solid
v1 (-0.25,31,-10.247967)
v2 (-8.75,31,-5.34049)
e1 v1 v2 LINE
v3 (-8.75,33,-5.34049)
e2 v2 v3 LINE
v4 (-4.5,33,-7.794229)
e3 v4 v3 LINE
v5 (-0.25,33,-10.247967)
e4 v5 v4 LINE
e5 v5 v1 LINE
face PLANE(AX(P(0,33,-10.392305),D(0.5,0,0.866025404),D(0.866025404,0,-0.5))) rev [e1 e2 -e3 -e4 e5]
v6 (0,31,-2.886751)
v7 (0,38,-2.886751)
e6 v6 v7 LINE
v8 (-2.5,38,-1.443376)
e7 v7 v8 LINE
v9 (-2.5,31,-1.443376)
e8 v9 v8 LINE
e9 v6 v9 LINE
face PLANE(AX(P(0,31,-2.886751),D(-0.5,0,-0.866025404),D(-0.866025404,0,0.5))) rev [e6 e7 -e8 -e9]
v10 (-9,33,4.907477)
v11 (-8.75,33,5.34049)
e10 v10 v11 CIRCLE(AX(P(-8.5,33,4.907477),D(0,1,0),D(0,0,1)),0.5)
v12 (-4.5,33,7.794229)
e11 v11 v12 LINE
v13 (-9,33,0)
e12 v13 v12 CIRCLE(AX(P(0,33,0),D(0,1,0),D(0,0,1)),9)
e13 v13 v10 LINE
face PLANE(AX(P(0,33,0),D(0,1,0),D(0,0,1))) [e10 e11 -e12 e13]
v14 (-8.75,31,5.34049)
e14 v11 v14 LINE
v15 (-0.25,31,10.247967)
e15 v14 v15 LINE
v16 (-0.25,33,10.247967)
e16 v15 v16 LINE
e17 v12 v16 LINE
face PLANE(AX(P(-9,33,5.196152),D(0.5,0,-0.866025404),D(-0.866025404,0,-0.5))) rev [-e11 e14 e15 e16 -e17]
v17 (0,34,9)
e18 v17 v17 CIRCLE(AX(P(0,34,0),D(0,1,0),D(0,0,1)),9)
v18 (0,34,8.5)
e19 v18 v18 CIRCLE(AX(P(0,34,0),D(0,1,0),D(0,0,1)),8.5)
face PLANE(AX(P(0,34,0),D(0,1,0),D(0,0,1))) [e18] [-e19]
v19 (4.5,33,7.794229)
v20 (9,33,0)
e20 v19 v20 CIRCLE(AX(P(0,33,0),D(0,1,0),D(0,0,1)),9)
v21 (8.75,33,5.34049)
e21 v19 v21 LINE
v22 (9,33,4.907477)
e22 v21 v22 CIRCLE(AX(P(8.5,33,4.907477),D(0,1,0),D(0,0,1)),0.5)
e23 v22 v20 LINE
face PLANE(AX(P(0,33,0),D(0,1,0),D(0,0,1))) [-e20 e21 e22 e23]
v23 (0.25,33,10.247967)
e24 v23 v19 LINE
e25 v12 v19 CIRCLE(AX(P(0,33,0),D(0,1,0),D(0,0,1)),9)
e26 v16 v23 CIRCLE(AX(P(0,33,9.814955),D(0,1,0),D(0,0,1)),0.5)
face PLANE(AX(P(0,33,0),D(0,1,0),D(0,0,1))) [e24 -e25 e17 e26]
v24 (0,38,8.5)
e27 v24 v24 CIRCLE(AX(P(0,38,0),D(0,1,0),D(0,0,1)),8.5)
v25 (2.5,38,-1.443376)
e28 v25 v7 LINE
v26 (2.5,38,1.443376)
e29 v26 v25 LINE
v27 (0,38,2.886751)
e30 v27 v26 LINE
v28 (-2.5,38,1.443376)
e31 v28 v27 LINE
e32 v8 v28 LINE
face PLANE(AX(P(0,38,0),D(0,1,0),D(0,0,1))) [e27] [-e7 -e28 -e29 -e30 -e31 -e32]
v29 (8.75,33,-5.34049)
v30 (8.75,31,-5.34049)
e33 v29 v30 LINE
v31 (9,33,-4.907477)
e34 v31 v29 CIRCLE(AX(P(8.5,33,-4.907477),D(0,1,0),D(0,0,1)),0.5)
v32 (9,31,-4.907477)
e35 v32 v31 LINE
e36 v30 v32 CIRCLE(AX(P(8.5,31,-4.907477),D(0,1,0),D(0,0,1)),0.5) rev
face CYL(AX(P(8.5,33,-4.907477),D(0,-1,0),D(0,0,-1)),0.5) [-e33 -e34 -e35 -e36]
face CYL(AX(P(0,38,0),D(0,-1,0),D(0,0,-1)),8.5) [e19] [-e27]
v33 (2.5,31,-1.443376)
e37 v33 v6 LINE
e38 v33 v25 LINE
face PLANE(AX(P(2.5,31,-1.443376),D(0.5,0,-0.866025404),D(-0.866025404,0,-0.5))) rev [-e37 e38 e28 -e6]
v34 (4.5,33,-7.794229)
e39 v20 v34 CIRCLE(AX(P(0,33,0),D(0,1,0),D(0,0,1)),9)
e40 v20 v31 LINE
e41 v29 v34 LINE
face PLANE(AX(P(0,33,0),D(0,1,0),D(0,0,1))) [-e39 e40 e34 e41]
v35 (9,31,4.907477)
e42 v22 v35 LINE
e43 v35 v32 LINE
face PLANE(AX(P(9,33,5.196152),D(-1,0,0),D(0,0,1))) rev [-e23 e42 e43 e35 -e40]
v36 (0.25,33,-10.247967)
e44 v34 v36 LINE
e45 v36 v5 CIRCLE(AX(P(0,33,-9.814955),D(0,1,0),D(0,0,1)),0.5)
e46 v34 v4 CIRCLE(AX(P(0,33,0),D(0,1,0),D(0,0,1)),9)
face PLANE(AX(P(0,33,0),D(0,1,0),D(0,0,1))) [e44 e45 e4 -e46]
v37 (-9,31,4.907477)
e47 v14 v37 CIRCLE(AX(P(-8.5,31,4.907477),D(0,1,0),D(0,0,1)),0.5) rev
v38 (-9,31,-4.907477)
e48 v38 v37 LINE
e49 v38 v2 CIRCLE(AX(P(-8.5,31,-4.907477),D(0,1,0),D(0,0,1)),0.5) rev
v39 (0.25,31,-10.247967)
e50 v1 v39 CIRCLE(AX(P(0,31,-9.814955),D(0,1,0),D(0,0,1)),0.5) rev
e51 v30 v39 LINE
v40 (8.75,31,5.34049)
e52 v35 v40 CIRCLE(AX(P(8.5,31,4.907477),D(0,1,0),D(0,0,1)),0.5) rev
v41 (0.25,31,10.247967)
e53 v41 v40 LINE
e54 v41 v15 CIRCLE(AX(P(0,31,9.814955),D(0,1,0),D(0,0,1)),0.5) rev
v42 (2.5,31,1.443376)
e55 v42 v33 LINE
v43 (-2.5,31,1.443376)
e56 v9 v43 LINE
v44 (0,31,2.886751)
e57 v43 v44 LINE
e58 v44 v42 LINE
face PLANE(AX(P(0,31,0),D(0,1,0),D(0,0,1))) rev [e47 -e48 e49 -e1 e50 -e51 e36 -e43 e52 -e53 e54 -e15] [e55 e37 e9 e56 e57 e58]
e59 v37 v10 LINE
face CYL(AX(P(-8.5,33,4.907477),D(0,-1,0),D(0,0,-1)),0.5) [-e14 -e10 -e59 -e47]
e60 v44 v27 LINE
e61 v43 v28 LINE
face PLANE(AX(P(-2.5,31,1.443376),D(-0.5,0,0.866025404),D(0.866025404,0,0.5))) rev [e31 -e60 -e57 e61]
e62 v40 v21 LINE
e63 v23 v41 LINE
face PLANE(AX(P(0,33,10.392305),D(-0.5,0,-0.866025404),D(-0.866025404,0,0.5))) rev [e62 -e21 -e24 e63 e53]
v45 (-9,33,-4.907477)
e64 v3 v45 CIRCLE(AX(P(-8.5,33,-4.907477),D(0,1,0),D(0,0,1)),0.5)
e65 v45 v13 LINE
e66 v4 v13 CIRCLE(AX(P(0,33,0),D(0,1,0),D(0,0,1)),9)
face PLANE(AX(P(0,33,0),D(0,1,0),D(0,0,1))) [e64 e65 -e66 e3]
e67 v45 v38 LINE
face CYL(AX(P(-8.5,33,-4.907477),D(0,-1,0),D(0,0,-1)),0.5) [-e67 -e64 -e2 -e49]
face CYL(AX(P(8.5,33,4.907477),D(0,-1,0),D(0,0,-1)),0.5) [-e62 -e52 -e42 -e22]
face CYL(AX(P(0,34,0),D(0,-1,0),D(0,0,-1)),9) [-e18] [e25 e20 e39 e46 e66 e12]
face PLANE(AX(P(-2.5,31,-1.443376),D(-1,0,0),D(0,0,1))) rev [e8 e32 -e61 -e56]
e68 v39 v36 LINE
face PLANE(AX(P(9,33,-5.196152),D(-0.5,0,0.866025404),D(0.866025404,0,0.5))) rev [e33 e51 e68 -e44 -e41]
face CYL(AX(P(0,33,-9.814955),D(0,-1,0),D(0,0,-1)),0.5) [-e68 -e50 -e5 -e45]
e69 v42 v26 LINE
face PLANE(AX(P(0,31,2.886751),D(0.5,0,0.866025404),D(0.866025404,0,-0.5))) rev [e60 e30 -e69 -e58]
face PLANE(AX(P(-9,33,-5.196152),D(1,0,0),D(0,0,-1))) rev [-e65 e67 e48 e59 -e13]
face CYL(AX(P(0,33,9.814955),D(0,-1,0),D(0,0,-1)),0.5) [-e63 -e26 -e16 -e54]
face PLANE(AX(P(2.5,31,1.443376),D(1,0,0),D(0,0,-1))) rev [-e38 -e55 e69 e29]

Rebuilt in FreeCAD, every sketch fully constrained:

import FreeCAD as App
import Part
import Sketcher
from FreeCAD import Vector
Q = App.Units.Quantity


def edges_at(feature, points):
    """Names of the edges that pass closest to the given points."""
    edges = feature.Shape.Edges
    near = lambda p: min(range(len(edges)), key=lambda i: edges[i].distToShape(Part.Vertex(*p))[0])
    return sorted({f"Edge{near(p) + 1}" for p in points})

doc = App.newDocument("Part")
body = doc.addObject("PartDesign::Body", "Body")

# Sketch on XZ plane
sketch1 = body.newObject("Sketcher::SketchObject", "Sketch")
sketch1.AttachmentSupport = (doc.getObject("XZ_Plane"), [""])
sketch1.MapMode = "FlatFace"
sketch1.AttachmentOffset = App.Placement(Vector(0, 0, -31), App.Rotation())
sketch1.addGeometry([
    Part.LineSegment(Vector(0, -10, 0), Vector(-9, -5, 0)),  # 0
    Part.LineSegment(Vector(-9, -5, 0), Vector(-9, 5, 0)),  # 1
    Part.LineSegment(Vector(-9, 5, 0), Vector(0, 10, 0)),  # 2
    Part.LineSegment(Vector(0, 10, 0), Vector(9, 5, 0)),  # 3
    Part.LineSegment(Vector(9, 5, 0), Vector(9, -5, 0)),  # 4
    Part.LineSegment(Vector(9, -5, 0), Vector(0, -10, 0)),  # 5
], False)
sketch1.addConstraint([
    Sketcher.Constraint("Coincident", 0, 2, 1, 1),
    Sketcher.Constraint("Coincident", 1, 2, 2, 1),
    Sketcher.Constraint("Coincident", 2, 2, 3, 1),
    Sketcher.Constraint("Coincident", 3, 2, 4, 1),
    Sketcher.Constraint("Coincident", 4, 2, 5, 1),
    Sketcher.Constraint("Coincident", 5, 2, 0, 1),
    Sketcher.Constraint("Vertical", 1),
    Sketcher.Constraint("Vertical", 4),
    Sketcher.Constraint("Symmetric", 0, 2, 3, 2, -1, 1),
    Sketcher.Constraint("Symmetric", 2, 2, 5, 2, -1, 1),
    Sketcher.Constraint("PointOnObject", 2, 2, -2),
    Sketcher.Constraint("Parallel", 2, 5),
    Sketcher.Constraint("Horizontal", 1, 2, 3, 2),
    Sketcher.Constraint("Angle", 0, Q("150 deg")),
    Sketcher.Constraint("DistanceX", 0, 2, -1, 1, 9.0),
    Sketcher.Constraint("DistanceY", 1, 1, 1, 2, 10.392305),
])
pad1 = body.newObject("PartDesign::Pad", "Pad")
pad1.Profile = sketch1
pad1.Length = 2
pad1.Reversed = True
doc.recompute()

fillet = body.newObject("PartDesign::Fillet", "Fillet")
fillet.Base = (pad1, edges_at(pad1, [
    (9, 32, -5.196),
    (9, 32, 5.196),
    (0, 32, 10.392),
    (-9, 32, 5.196),
    (-9, 32, -5.196),
    (0, 32, -10.392),
]))
fillet.Radius = 0.5

# Sketch on XZ plane
sketch2 = body.newObject("Sketcher::SketchObject", "Sketch001")
sketch2.AttachmentSupport = (doc.getObject("XZ_Plane"), [""])
sketch2.MapMode = "FlatFace"
sketch2.AttachmentOffset = App.Placement(Vector(0, 0, -33), App.Rotation())
sketch2.addGeometry(Part.Circle(Vector(0, 0, 0), Vector(0, 0, 1), 9), False)
sketch2.addConstraint([
    Sketcher.Constraint("Coincident", 0, 3, -1, 1),
    Sketcher.Constraint("Diameter", 0, 18.0),
])
pad2 = body.newObject("PartDesign::Pad", "Pad001")
pad2.Profile = sketch2
pad2.Length = 1
pad2.Reversed = True

# Sketch on XZ plane
sketch3 = body.newObject("Sketcher::SketchObject", "Sketch002")
sketch3.AttachmentSupport = (doc.getObject("XZ_Plane"), [""])
sketch3.MapMode = "FlatFace"
sketch3.AttachmentOffset = App.Placement(Vector(0, 0, -34), App.Rotation())
sketch3.addGeometry(Part.Circle(Vector(0, 0, 0), Vector(0, 0, 1), 8), False)
sketch3.addConstraint([
    Sketcher.Constraint("Coincident", 0, 3, -1, 1),
    Sketcher.Constraint("Diameter", 0, 17.0),
])
pad3 = body.newObject("PartDesign::Pad", "Pad002")
pad3.Profile = sketch3
pad3.Length = 4
pad3.Reversed = True

# Sketch on XZ plane
sketch4 = body.newObject("Sketcher::SketchObject", "Sketch003")
sketch4.AttachmentSupport = (doc.getObject("XZ_Plane"), [""])
sketch4.MapMode = "FlatFace"
sketch4.AttachmentOffset = App.Placement(Vector(0, 0, -38), App.Rotation())
sketch4.addGeometry([
    Part.LineSegment(Vector(0, -2.9, 0), Vector(-2.5, -1.4, 0)),  # 0
    Part.LineSegment(Vector(-2.5, -1.4, 0), Vector(-2.5, 1.4, 0)),  # 1
    Part.LineSegment(Vector(-2.5, 1.4, 0), Vector(0, 2.9, 0)),  # 2
    Part.LineSegment(Vector(0, 2.9, 0), Vector(2.5, 1.4, 0)),  # 3
    Part.LineSegment(Vector(2.5, 1.4, 0), Vector(2.5, -1.4, 0)),  # 4
    Part.LineSegment(Vector(2.5, -1.4, 0), Vector(0, -2.9, 0)),  # 5
], False)
sketch4.addConstraint([
    Sketcher.Constraint("Coincident", 0, 2, 1, 1),
    Sketcher.Constraint("Coincident", 1, 2, 2, 1),
    Sketcher.Constraint("Coincident", 2, 2, 3, 1),
    Sketcher.Constraint("Coincident", 3, 2, 4, 1),
    Sketcher.Constraint("Coincident", 4, 2, 5, 1),
    Sketcher.Constraint("Coincident", 5, 2, 0, 1),
    Sketcher.Constraint("Vertical", 1),
    Sketcher.Constraint("Vertical", 4),
    Sketcher.Constraint("Symmetric", 0, 2, 3, 2, -1, 1),
    Sketcher.Constraint("Symmetric", 2, 2, 5, 2, -1, 1),
    Sketcher.Constraint("PointOnObject", 2, 2, -2),
    Sketcher.Constraint("Parallel", 2, 5),
    Sketcher.Constraint("Horizontal", 1, 2, 3, 2),
    Sketcher.Constraint("Angle", 0, Q("150 deg")),
    Sketcher.Constraint("DistanceX", 1, 2, 3, 2, 5.0),
    Sketcher.Constraint("DistanceY", 1, 1, 1, 2, 2.886751),
])
pocket1 = body.newObject("PartDesign::Pocket", "Pocket")
pocket1.Profile = sketch4
pocket1.Type = "ThroughAll"
pocket1.Reversed = True

doc.recompute()
